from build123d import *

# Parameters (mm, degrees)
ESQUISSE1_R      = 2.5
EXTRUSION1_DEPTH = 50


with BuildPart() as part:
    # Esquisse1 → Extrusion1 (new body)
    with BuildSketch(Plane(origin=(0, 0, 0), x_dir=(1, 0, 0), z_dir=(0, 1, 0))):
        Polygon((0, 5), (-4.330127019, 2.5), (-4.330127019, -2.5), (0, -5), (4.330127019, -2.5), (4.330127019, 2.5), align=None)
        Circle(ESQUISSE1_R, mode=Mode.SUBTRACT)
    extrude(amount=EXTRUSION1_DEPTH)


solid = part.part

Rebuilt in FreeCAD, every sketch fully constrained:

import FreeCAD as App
import Part
import Sketcher
from FreeCAD import Vector
Q = App.Units.Quantity


def add_polygon(sketch, points):
    """Adds a closed chain of lines whose ends are joined by coincident constraints."""
    first, n = sketch.GeometryCount, len(points)
    for a, b in zip(points, points[1:] + points[:1]):
        sketch.addGeometry(Part.LineSegment(App.Vector(*a, 0), App.Vector(*b, 0)), False)
    for i in range(n):
        sketch.addConstraint(Sketcher.Constraint("Coincident", first + i, 2, first + (i + 1) % n, 1))

doc = App.newDocument("Part")
body = doc.addObject("PartDesign::Body", "Body")

# Sketch on XZ plane
sketch1 = body.newObject("Sketcher::SketchObject", "Sketch")
sketch1.AttachmentSupport = (doc.getObject("XZ_Plane"), [""])
sketch1.MapMode = "FlatFace"
add_polygon(sketch1, [(0, -5), (-4.3, -2.5), (-4.3, 2.5), (0, 5), (4.3, 2.5), (4.3, -2.5)])  # lines 0-5
sketch1.addGeometry(Part.Circle(Vector(0, 0, 0), Vector(0, 0, 1), 2.5), False)  # 6
sketch1.addConstraint(Sketcher.Constraint("Vertical", 1))
sketch1.addConstraint(Sketcher.Constraint("Vertical", 4))
sketch1.addConstraint(Sketcher.Constraint("Coincident", 6, 3, -1, 1))
sketch1.addConstraint(Sketcher.Constraint("Symmetric", 0, 2, 3, 2, -1, 1))
sketch1.addConstraint(Sketcher.Constraint("Symmetric", 2, 2, 5, 2, -1, 1))
sketch1.addConstraint(Sketcher.Constraint("PointOnObject", 2, 2, -2))
sketch1.addConstraint(Sketcher.Constraint("Parallel", 2, 5))
sketch1.addConstraint(Sketcher.Constraint("Horizontal", 1, 2, 3, 2))
sketch1.addConstraint(Sketcher.Constraint("Diameter", 6, 5.0))
sketch1.addConstraint(Sketcher.Constraint("DistanceY", 1, 1, 1, 2, 5.0))
sketch1.addConstraint(Sketcher.Constraint("Angle", 0, Q("150 deg")))
sketch1.addConstraint(Sketcher.Constraint("Distance", 0, 5.0))
pad1 = body.newObject("PartDesign::Pad", "Pad")
pad1.Profile = sketch1
pad1.Length = 50
pad1.Reversed = True

doc.recompute()
